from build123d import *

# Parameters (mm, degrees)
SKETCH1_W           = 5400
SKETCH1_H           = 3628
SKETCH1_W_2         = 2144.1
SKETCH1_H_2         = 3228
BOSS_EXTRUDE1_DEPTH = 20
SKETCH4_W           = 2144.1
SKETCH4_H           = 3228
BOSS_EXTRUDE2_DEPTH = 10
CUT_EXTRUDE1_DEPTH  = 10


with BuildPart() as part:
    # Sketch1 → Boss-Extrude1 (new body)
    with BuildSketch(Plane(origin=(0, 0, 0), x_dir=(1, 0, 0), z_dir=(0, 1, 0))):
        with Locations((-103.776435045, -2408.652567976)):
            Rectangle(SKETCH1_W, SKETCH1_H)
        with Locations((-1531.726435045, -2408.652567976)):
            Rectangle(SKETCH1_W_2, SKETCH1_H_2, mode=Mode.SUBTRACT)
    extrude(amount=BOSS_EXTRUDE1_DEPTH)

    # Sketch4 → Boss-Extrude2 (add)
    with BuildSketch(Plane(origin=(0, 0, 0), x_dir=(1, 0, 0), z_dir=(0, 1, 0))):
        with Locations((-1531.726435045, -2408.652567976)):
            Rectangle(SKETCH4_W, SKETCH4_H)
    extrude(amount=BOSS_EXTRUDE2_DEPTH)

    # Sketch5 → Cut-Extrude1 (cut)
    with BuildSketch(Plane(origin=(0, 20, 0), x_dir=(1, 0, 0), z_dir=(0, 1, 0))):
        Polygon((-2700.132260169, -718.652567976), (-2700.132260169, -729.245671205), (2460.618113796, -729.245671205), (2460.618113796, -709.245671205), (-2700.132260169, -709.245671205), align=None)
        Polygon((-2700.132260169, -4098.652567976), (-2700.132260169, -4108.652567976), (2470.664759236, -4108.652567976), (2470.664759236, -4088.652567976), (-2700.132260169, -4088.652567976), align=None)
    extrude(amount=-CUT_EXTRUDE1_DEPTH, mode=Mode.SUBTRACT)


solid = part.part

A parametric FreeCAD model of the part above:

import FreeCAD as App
import Part
import Sketcher


def add_polygon(sketch, points):
    """Adds a closed chain of lines whose ends are joined by coincident constraints."""
    first, n = sketch.GeometryCount, len(points)
    for a, b in zip(points, points[1:] + points[:1]):
        sketch.addGeometry(Part.LineSegment(App.Vector(*a, 0), App.Vector(*b, 0)), False)
    for i in range(n):
        sketch.addConstraint(Sketcher.Constraint("Coincident", first + i, 2, first + (i + 1) % n, 1))

doc = App.newDocument("Part")
body = doc.addObject("PartDesign::Body", "Body")

# Sketch on XZ plane
sketch1 = doc.addObject("Sketcher::SketchObject", "Sketch")
body.addObject(sketch1)
sketch1.AttachmentSupport = (doc.XZ_Plane, [""])
sketch1.MapMode = "FlatFace"
add_polygon(sketch1, [(-2804, 595), (-2804, 4223), (2596, 4223), (2596, 595)])  # lines 0-3
add_polygon(sketch1, [(-460, 4023), (-2604, 4023), (-2604, 795), (-460, 795)])  # lines 4-7
sketch1.addConstraint(Sketcher.Constraint("Vertical", 0))
sketch1.addConstraint(Sketcher.Constraint("Horizontal", 1))
sketch1.addConstraint(Sketcher.Constraint("Vertical", 2))
sketch1.addConstraint(Sketcher.Constraint("Horizontal", 3))
sketch1.addConstraint(Sketcher.Constraint("Horizontal", 4))
sketch1.addConstraint(Sketcher.Constraint("Vertical", 5))
sketch1.addConstraint(Sketcher.Constraint("Horizontal", 6))
sketch1.addConstraint(Sketcher.Constraint("Vertical", 7))
sketch1.addConstraint(Sketcher.Constraint("DistanceX", 1, 1, 1, 2, 5400.0))
sketch1.addConstraint(Sketcher.Constraint("DistanceY", 0, 1, 0, 2, 3628.0))
sketch1.addConstraint(Sketcher.Constraint("DistanceY", 5, 2, 5, 1, 3228.0))
sketch1.addConstraint(Sketcher.Constraint("DistanceX", 4, 2, 4, 1, 2144.1))
sketch1.addConstraint(Sketcher.Constraint("DistanceX", 0, 2, 4, 2, 200.0))
sketch1.addConstraint(Sketcher.Constraint("DistanceY", 4, 2, 0, 2, 200.0))
sketch1.addConstraint(Sketcher.Constraint("DistanceX", 0, 2, -1, 1, 2803.776435))
sketch1.addConstraint(Sketcher.Constraint("DistanceY", -1, 1, 0, 2, 4222.652568))
pad1 = doc.addObject("PartDesign::Pad", "Pad")
body.addObject(pad1)
pad1.Profile = sketch1
pad1.Length = 20
pad1.Reversed = True

# Sketch on XZ plane
sketch2 = doc.addObject("Sketcher::SketchObject", "Sketch001")
body.addObject(sketch2)
sketch2.AttachmentSupport = (doc.XZ_Plane, [""])
sketch2.MapMode = "FlatFace"
add_polygon(sketch2, [(-2604, 795), (-2604, 4023), (-460, 4023), (-460, 795)])  # lines 0-3
sketch2.addConstraint(Sketcher.Constraint("Vertical", 0))
sketch2.addConstraint(Sketcher.Constraint("Horizontal", 1))
sketch2.addConstraint(Sketcher.Constraint("Vertical", 2))
sketch2.addConstraint(Sketcher.Constraint("Horizontal", 3))
sketch2.addConstraint(Sketcher.Constraint("DistanceY", 0, 1, 0, 2, 3228.0))
sketch2.addConstraint(Sketcher.Constraint("DistanceX", 1, 1, 1, 2, 2144.1))
sketch2.addConstraint(Sketcher.Constraint("DistanceX", 0, 2, -1, 1, 2603.776435))
sketch2.addConstraint(Sketcher.Constraint("DistanceY", -1, 1, 0, 2, 4022.652568))
pad2 = doc.addObject("PartDesign::Pad", "Pad001")
body.addObject(pad2)
pad2.Profile = sketch2
pad2.Length = 10
pad2.Reversed = True

# Sketch on XZ plane
sketch3 = doc.addObject("Sketcher::SketchObject", "Sketch002")
body.addObject(sketch3)
sketch3.AttachmentSupport = (doc.XZ_Plane, [""])
sketch3.MapMode = "FlatFace"
sketch3.AttachmentOffset = App.Placement(App.Vector(0, 0, -20), App.Rotation())
add_polygon(sketch3, [(-2700, 729), (2461, 729), (2461, 709), (-2700, 709)])  # lines 0-3
add_polygon(sketch3, [(-2700, 4109), (2471, 4109), (2471, 4089), (-2700, 4089)])  # lines 4-7
sketch3.addConstraint(Sketcher.Constraint("Horizontal", 0))
sketch3.addConstraint(Sketcher.Constraint("Vertical", 1))
sketch3.addConstraint(Sketcher.Constraint("Horizontal", 2))
sketch3.addConstraint(Sketcher.Constraint("Vertical", 3))
sketch3.addConstraint(Sketcher.Constraint("Horizontal", 4))
sketch3.addConstraint(Sketcher.Constraint("Vertical", 5))
sketch3.addConstraint(Sketcher.Constraint("Horizontal", 6))
sketch3.addConstraint(Sketcher.Constraint("Vertical", 7))
sketch3.addConstraint(Sketcher.Constraint("Vertical", 3, 2, 6, 2))
sketch3.addConstraint(Sketcher.Constraint("Equal", 3, 5))
sketch3.addConstraint(Sketcher.Constraint("DistanceY", 1, 2, 1, 1, 20.0))
sketch3.addConstraint(Sketcher.Constraint("DistanceX", 4, 1, 4, 2, 5170.797019))
sketch3.addConstraint(Sketcher.Constraint("DistanceX", 0, 1, 0, 2, 5160.750374))
sketch3.addConstraint(Sketcher.Constraint("DistanceY", -1, 1, 0, 2, 729.245671))
sketch3.addConstraint(Sketcher.Constraint("DistanceX", 2, 2, -1, 1, 2700.13226))
sketch3.addConstraint(Sketcher.Constraint("DistanceY", -1, 1, 4, 2, 4108.652568))
pocket1 = doc.addObject("PartDesign::Pocket", "Pocket")
body.addObject(pocket1)
pocket1.Profile = sketch3
pocket1.Length = 10
pocket1.Reversed = True

doc.recompute()
